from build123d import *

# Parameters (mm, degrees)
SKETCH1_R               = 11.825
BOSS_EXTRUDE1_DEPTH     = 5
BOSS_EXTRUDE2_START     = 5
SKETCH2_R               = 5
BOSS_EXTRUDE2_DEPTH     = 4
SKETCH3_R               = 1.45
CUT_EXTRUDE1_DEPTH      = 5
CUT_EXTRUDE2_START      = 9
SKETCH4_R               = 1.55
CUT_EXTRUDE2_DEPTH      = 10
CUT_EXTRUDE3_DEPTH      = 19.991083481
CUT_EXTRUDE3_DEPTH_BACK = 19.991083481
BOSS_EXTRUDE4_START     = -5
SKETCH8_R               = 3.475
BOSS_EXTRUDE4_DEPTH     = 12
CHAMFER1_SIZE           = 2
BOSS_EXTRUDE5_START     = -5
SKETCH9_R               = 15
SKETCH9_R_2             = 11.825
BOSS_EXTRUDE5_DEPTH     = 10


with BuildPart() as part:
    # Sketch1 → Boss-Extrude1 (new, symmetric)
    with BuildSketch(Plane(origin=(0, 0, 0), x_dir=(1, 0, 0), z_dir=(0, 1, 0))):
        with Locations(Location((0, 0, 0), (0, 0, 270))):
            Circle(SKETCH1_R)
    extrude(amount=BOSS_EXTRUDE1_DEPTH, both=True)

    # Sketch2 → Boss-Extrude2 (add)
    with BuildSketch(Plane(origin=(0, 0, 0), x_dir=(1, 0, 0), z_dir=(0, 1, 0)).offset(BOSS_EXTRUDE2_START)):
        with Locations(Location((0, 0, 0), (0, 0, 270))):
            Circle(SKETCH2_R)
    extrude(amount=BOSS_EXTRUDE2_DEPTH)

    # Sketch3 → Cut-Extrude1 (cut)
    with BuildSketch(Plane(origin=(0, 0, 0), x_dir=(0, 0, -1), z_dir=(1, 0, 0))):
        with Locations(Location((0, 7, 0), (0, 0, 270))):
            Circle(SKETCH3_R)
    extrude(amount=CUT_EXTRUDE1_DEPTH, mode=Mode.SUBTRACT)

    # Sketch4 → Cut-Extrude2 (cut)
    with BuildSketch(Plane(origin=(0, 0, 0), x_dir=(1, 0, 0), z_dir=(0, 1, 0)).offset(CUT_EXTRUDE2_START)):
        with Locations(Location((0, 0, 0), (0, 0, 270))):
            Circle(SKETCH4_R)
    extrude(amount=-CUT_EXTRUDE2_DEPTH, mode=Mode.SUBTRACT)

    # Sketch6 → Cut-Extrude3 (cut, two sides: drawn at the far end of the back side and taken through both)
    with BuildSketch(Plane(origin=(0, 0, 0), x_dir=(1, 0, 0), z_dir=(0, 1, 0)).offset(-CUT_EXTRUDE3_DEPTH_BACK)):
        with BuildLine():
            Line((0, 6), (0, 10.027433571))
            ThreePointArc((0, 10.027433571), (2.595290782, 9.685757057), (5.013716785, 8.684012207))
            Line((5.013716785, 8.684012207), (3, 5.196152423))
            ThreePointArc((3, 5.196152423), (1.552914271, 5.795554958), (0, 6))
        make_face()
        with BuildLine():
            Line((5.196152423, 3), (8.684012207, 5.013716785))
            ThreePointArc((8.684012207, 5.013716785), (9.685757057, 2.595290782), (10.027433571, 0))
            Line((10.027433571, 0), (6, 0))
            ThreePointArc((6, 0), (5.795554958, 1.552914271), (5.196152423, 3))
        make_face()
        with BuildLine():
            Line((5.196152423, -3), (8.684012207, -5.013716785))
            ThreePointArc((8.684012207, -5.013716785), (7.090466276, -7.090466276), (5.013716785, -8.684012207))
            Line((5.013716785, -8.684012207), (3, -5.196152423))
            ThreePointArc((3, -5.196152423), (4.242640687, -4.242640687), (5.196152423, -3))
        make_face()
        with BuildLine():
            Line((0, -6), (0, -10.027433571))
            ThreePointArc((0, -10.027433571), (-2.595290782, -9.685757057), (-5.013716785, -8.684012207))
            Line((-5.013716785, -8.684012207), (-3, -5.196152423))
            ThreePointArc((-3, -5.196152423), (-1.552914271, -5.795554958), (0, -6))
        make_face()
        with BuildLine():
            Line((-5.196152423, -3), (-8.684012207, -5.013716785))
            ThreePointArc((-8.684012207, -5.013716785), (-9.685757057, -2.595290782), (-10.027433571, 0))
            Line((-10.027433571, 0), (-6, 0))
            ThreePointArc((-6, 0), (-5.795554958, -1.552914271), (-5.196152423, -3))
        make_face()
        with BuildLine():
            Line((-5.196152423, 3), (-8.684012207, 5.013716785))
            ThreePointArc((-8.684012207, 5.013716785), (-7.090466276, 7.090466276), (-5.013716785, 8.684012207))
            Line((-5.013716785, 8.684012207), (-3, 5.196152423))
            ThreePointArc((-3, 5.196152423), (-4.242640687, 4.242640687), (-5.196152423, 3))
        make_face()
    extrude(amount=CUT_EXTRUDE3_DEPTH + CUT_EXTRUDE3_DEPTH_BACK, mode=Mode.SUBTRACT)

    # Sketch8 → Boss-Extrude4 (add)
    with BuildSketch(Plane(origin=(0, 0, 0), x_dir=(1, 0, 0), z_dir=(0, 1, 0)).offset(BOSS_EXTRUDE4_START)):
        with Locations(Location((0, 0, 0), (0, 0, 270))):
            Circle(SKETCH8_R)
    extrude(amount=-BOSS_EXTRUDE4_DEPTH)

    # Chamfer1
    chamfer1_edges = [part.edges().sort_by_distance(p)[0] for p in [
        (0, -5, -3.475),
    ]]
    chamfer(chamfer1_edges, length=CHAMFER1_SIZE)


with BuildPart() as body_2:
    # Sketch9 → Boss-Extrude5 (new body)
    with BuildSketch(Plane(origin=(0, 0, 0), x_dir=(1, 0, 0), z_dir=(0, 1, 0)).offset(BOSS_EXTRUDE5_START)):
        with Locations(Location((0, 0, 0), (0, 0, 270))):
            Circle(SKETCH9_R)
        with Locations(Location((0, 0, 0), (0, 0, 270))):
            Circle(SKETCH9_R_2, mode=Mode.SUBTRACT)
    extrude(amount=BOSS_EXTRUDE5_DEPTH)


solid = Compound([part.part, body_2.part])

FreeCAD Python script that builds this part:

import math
import FreeCAD as App
import Part
import Sketcher

V = App.Vector
Q = App.Units.Quantity


def edges_at(feature, points):
    """Names of the edges that pass closest to the given points."""
    edges = feature.Shape.Edges
    near = lambda p: min(range(len(edges)), key=lambda i: edges[i].distToShape(Part.Vertex(*p))[0])
    return sorted({f"Edge{near(p) + 1}" for p in points})

doc = App.newDocument("Part")
body = doc.addObject("PartDesign::Body", "Body")

# Sketch on XZ plane
sketch1 = body.newObject("Sketcher::SketchObject", "Sketch")
sketch1.AttachmentSupport = (doc.getObject("XZ_Plane"), [""])
sketch1.MapMode = "FlatFace"
sketch1.addGeometry(Part.Circle(V(0, 0, 0), V(0, 0, 1), 12), False)
sketch1.addConstraint([
    Sketcher.Constraint("Coincident", 0, 3, -1, 1),
    Sketcher.Constraint("Diameter", 0, Q("23.65 mm")),
])
pad1 = body.newObject("PartDesign::Pad", "Pad")
pad1.Profile = sketch1
pad1.Length = 10
pad1.Midplane = True

# Sketch on XZ plane
sketch2 = body.newObject("Sketcher::SketchObject", "Sketch001")
sketch2.AttachmentSupport = (doc.getObject("XZ_Plane"), [""])
sketch2.MapMode = "FlatFace"
sketch2.AttachmentOffset = App.Placement(V(0, 0, -5), App.Rotation())
sketch2.addGeometry(Part.Circle(V(0, 0, 0), V(0, 0, 1), 5), False)
sketch2.addConstraint([
    Sketcher.Constraint("Coincident", 0, 3, -1, 1),
    Sketcher.Constraint("Diameter", 0, Q("10 mm")),
])
pad2 = body.newObject("PartDesign::Pad", "Pad001")
pad2.Profile = sketch2
pad2.Length = 4
pad2.Reversed = True

# Sketch on YZ plane
sketch3 = body.newObject("Sketcher::SketchObject", "Sketch002")
sketch3.AttachmentSupport = (doc.getObject("YZ_Plane"), [""])
sketch3.MapMode = "FlatFace"
sketch3.addGeometry(Part.Circle(V(7, 0, 0), V(0, 0, 1), 1.4), False)
sketch3.addConstraint([
    Sketcher.Constraint("PointOnObject", 0, 3, -1),
    Sketcher.Constraint("Diameter", 0, Q("2.9 mm")),
    Sketcher.Constraint("DistanceX", -1, 1, 0, 3, Q("7 mm")),
])
pocket1 = body.newObject("PartDesign::Pocket", "Pocket")
pocket1.Profile = sketch3
pocket1.Length = 5
pocket1.Reversed = True

# Sketch on XZ plane
sketch4 = body.newObject("Sketcher::SketchObject", "Sketch003")
sketch4.AttachmentSupport = (doc.getObject("XZ_Plane"), [""])
sketch4.MapMode = "FlatFace"
sketch4.AttachmentOffset = App.Placement(V(0, 0, -9), App.Rotation())
sketch4.addGeometry(Part.Circle(V(0, 0, 0), V(0, 0, 1), 1.6), False)
sketch4.addConstraint([
    Sketcher.Constraint("Coincident", 0, 3, -1, 1),
    Sketcher.Constraint("Diameter", 0, Q("3.1 mm")),
])
pocket2 = body.newObject("PartDesign::Pocket", "Pocket001")
pocket2.Profile = sketch4
pocket2.Length = 10
pocket2.Reversed = True

# Sketch on XZ plane
sketch5 = body.newObject("Sketcher::SketchObject", "Sketch004")
sketch5.AttachmentSupport = (doc.getObject("XZ_Plane"), [""])
sketch5.MapMode = "FlatFace"
sketch5.addGeometry([
    Part.LineSegment(V(0, -10, 0), V(0, -6, 0)),  # 0
    Part.ArcOfCircle(Part.Circle(V(0, 0, 0), V(0, 0, 1), 6), math.radians(-90), math.radians(-60)),  # 1
    Part.LineSegment(V(3, -5.2, 0), V(5, -8.7, 0)),  # 2
    Part.ArcOfCircle(Part.Circle(V(0, 0, 0), V(0, 0, 1), 10), math.radians(-90), math.radians(-60)),  # 3
    Part.LineSegment(V(8.7, -5, 0), V(5.2, -3, 0)),  # 4
    Part.ArcOfCircle(Part.Circle(V(0, 0, 0), V(0, 0, 1), 6), math.radians(-30), math.radians(0)),  # 5
    Part.LineSegment(V(6, 0, 0), V(10, 0, 0)),  # 6
    Part.ArcOfCircle(Part.Circle(V(0, 0, 0), V(0, 0, 1), 10), math.radians(-30), math.radians(0)),  # 7
    Part.LineSegment(V(8.7, 5, 0), V(5.2, 3, 0)),  # 8
    Part.ArcOfCircle(Part.Circle(V(0, 0, 0), V(0, 0, 1), 6), math.radians(30), math.radians(60)),  # 9
    Part.LineSegment(V(3, 5.2, 0), V(5, 8.7, 0)),  # 10
    Part.ArcOfCircle(Part.Circle(V(0, 0, 0), V(0, 0, 1), 10), math.radians(30), math.radians(60)),  # 11
    Part.LineSegment(V(0, 10, 0), V(0, 6, 0)),  # 12
    Part.ArcOfCircle(Part.Circle(V(0, 0, 0), V(0, 0, 1), 6), math.radians(90), math.radians(120)),  # 13
    Part.LineSegment(V(-3, 5.2, 0), V(-5, 8.7, 0)),  # 14
    Part.ArcOfCircle(Part.Circle(V(0, 0, 0), V(0, 0, 1), 10), math.radians(90), math.radians(120)),  # 15
    Part.LineSegment(V(-8.7, 5, 0), V(-5.2, 3, 0)),  # 16
    Part.ArcOfCircle(Part.Circle(V(0, 0, 0), V(0, 0, 1), 6), math.radians(150), math.radians(180)),  # 17
    Part.LineSegment(V(-6, 0, 0), V(-10, 0, 0)),  # 18
    Part.ArcOfCircle(Part.Circle(V(0, 0, 0), V(0, 0, 1), 10), math.radians(150), math.radians(180)),  # 19
    Part.LineSegment(V(-8.7, -5, 0), V(-5.2, -3, 0)),  # 20
    Part.ArcOfCircle(Part.Circle(V(0, 0, 0), V(0, 0, 1), 6), math.radians(-150), math.radians(-120)),  # 21
    Part.LineSegment(V(-3, -5.2, 0), V(-5, -8.7, 0)),  # 22
    Part.ArcOfCircle(Part.Circle(V(0, 0, 0), V(0, 0, 1), 10), math.radians(-150), math.radians(-120)),  # 23
], False)
sketch5.addConstraint([
    Sketcher.Constraint("Coincident", 0, 2, 1, 1),
    Sketcher.Constraint("Coincident", 1, 2, 2, 1),
    Sketcher.Constraint("Coincident", 2, 2, 3, 2),
    Sketcher.Constraint("Coincident", 3, 1, 0, 1),
    Sketcher.Constraint("Coincident", 4, 2, 5, 1),
    Sketcher.Constraint("Coincident", 5, 2, 6, 1),
    Sketcher.Constraint("Coincident", 6, 2, 7, 2),
    Sketcher.Constraint("Coincident", 7, 1, 4, 1),
    Sketcher.Constraint("Coincident", 8, 2, 9, 1),
    Sketcher.Constraint("Coincident", 9, 2, 10, 1),
    Sketcher.Constraint("Coincident", 10, 2, 11, 2),
    Sketcher.Constraint("Coincident", 11, 1, 8, 1),
    Sketcher.Constraint("Coincident", 12, 2, 13, 1),
    Sketcher.Constraint("Coincident", 13, 2, 14, 1),
    Sketcher.Constraint("Coincident", 14, 2, 15, 2),
    Sketcher.Constraint("Coincident", 15, 1, 12, 1),
    Sketcher.Constraint("Coincident", 16, 2, 17, 1),
    Sketcher.Constraint("Coincident", 17, 2, 18, 1),
    Sketcher.Constraint("Coincident", 18, 2, 19, 2),
    Sketcher.Constraint("Coincident", 19, 1, 16, 1),
    Sketcher.Constraint("Coincident", 20, 2, 21, 1),
    Sketcher.Constraint("Coincident", 21, 2, 22, 1),
    Sketcher.Constraint("Coincident", 22, 2, 23, 2),
    Sketcher.Constraint("Coincident", 23, 1, 20, 1),
    Sketcher.Constraint("Vertical", 0),
    Sketcher.Constraint("Horizontal", 6),
    Sketcher.Constraint("Vertical", 12),
    Sketcher.Constraint("Horizontal", 18),
    Sketcher.Constraint("Coincident", 1, 3, -1, 1),
    Sketcher.Constraint("Coincident", 3, 3, -1, 1),
    Sketcher.Constraint("Coincident", 5, 3, -1, 1),
    Sketcher.Constraint("Coincident", 7, 3, -1, 1),
    Sketcher.Constraint("Coincident", 9, 3, -1, 1),
    Sketcher.Constraint("Coincident", 11, 3, -1, 1),
    Sketcher.Constraint("Coincident", 13, 3, -1, 1),
    Sketcher.Constraint("Coincident", 15, 3, -1, 1),
    Sketcher.Constraint("Coincident", 17, 3, -1, 1),
    Sketcher.Constraint("Coincident", 19, 3, -1, 1),
    Sketcher.Constraint("Coincident", 21, 3, -1, 1),
    Sketcher.Constraint("Coincident", 23, 3, -1, 1),
    Sketcher.Constraint("Equal", 1, 5),
    Sketcher.Constraint("Equal", 3, 7),
    Sketcher.Constraint("Equal", 5, 9),
    Sketcher.Constraint("Equal", 7, 11),
    Sketcher.Constraint("Equal", 9, 13),
    Sketcher.Constraint("Equal", 11, 15),
    Sketcher.Constraint("Equal", 13, 17),
    Sketcher.Constraint("Equal", 15, 19),
    Sketcher.Constraint("Equal", 17, 21),
    Sketcher.Constraint("Equal", 19, 23),
    Sketcher.Constraint("PointOnObject", 0, 2, -2),
    Sketcher.Constraint("PointOnObject", 5, 2, -1),
    Sketcher.Constraint("PointOnObject", 12, 2, -2),
    Sketcher.Constraint("PointOnObject", 17, 2, -1),
    Sketcher.Constraint("Perpendicular", 2, 8),
    Sketcher.Constraint("Perpendicular", 4, 10),
    Sketcher.Constraint("Perpendicular", 8, 14),
    Sketcher.Constraint("Perpendicular", 10, 16),
    Sketcher.Constraint("Perpendicular", 14, 20),
    Sketcher.Constraint("Perpendicular", 16, 22),
    Sketcher.Constraint("Horizontal", 9, 2, 13, 2),
    Sketcher.Constraint("Horizontal", 10, 2, 14, 2),
    Sketcher.Constraint("Horizontal", 8, 2, 16, 2),
    Sketcher.Constraint("Horizontal", 4, 2, 20, 2),
    Sketcher.Constraint("Horizontal", 1, 2, 21, 2),
    Sketcher.Constraint("Vertical", 4, 2, 8, 2),
    Sketcher.Constraint("Vertical", 1, 2, 9, 2),
    Sketcher.Constraint("Radius", 1, Q("6 mm")),
    Sketcher.Constraint("Angle", 2, Q("-60 deg")),
    Sketcher.Constraint("DistanceX", -1, 1, 1, 2, Q("3 mm")),
    Sketcher.Constraint("DistanceY", 4, 2, -1, 1, Q("3 mm")),
    Sketcher.Constraint("Radius", 3, Q("10.027434 mm")),
])
pocket3 = body.newObject("PartDesign::Pocket", "Pocket002")
pocket3.Profile = sketch5
pocket3.Type = "ThroughAll"
pocket3.Midplane = True

# Sketch on XZ plane
sketch6 = body.newObject("Sketcher::SketchObject", "Sketch005")
sketch6.AttachmentSupport = (doc.getObject("XZ_Plane"), [""])
sketch6.MapMode = "FlatFace"
sketch6.AttachmentOffset = App.Placement(V(0, 0, 5), App.Rotation())
sketch6.addGeometry(Part.Circle(V(0, 0, 0), V(0, 0, 1), 3.5), False)
sketch6.addConstraint([
    Sketcher.Constraint("Coincident", 0, 3, -1, 1),
    Sketcher.Constraint("Diameter", 0, Q("6.95 mm")),
])
pad3 = body.newObject("PartDesign::Pad", "Pad002")
pad3.Profile = sketch6
pad3.Length = 12
doc.recompute()

chamfer = body.newObject("PartDesign::Chamfer", "Chamfer")
chamfer.Base = (pad3, edges_at(pad3, [(0, -5, -3.475)]))
chamfer.Size = 2
body2 = doc.addObject("PartDesign::Body", "Body001")

# Sketch on XZ plane
sketch7 = body2.newObject("Sketcher::SketchObject", "Sketch006")
sketch7.AttachmentSupport = (doc.getObject("XZ_Plane001"), [""])
sketch7.MapMode = "FlatFace"
sketch7.AttachmentOffset = App.Placement(V(0, 0, 5), App.Rotation())
sketch7.addGeometry([
    Part.Circle(V(0, 0, 0), V(0, 0, 1), 15),
    Part.Circle(V(0, 0, 0), V(0, 0, 1), 12),
], False)
sketch7.addConstraint([
    Sketcher.Constraint("Coincident", 0, 3, -1, 1),
    Sketcher.Constraint("Coincident", 1, 3, -1, 1),
    Sketcher.Constraint("Diameter", 0, Q("30 mm")),
    Sketcher.Constraint("Diameter", 1, Q("23.65 mm")),
])
pad4 = body2.newObject("PartDesign::Pad", "Pad003")
pad4.Profile = sketch7
pad4.Length = 10
pad4.Reversed = True

doc.recompute()
